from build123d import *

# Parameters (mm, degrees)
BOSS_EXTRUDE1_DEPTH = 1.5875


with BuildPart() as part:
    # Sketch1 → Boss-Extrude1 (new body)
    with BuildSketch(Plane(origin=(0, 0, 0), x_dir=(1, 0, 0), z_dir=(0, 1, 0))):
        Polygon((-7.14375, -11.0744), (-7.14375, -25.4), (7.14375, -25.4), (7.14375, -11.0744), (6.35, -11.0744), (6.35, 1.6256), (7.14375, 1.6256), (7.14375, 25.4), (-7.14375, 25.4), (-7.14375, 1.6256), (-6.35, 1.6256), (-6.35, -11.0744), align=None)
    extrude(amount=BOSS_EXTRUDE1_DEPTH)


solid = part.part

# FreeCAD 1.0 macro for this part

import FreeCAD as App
import Part
import Sketcher
from FreeCAD import Vector
Q = App.Units.Quantity


def add_polygon(sketch, points):
    """Adds a closed chain of lines whose ends are joined by coincident constraints."""
    first, n = sketch.GeometryCount, len(points)
    for a, b in zip(points, points[1:] + points[:1]):
        sketch.addGeometry(Part.LineSegment(App.Vector(*a, 0), App.Vector(*b, 0)), False)
    for i in range(n):
        sketch.addConstraint(Sketcher.Constraint("Coincident", first + i, 2, first + (i + 1) % n, 1))

doc = App.newDocument("Part")
body = doc.addObject("PartDesign::Body", "Body")

sketch1 = doc.addObject("Sketcher::SketchObject", "Sketch")
body.addObject(sketch1)
sketch1.AttachmentSupport = (doc.XZ_Plane, [""])
sketch1.MapMode = "FlatFace"
add_polygon(sketch1, [(-7.14375, 11.0744), (-7.14375, 25.4), (7.14375, 25.4), (7.14375, 11.0744), (6.35, 11.0744), (6.35, -1.6256), (7.14375, -1.6256), (7.14375, -25.4), (-7.14375, -25.4), (-7.14375, -1.6256), (-6.35, -1.6256), (-6.35, 11.0744)])
sketch1.addConstraint(Sketcher.Constraint("Vertical", 0))
sketch1.addConstraint(Sketcher.Constraint("Horizontal", 1))
sketch1.addConstraint(Sketcher.Constraint("Vertical", 2))
sketch1.addConstraint(Sketcher.Constraint("Horizontal", 3))
sketch1.addConstraint(Sketcher.Constraint("Vertical", 4))
sketch1.addConstraint(Sketcher.Constraint("Horizontal", 5))
sketch1.addConstraint(Sketcher.Constraint("Vertical", 6))
sketch1.addConstraint(Sketcher.Constraint("Horizontal", 7))
sketch1.addConstraint(Sketcher.Constraint("Vertical", 8))
sketch1.addConstraint(Sketcher.Constraint("Horizontal", 9))
sketch1.addConstraint(Sketcher.Constraint("Vertical", 10))
sketch1.addConstraint(Sketcher.Constraint("Horizontal", 11))
sketch1.addConstraint(Sketcher.Constraint("Symmetric", 0, 2, 6, 2, -1, 1))
sketch1.addConstraint(Sketcher.Constraint("Symmetric", 5, 2, 8, 2, -2))
sketch1.addConstraint(Sketcher.Constraint("Symmetric", 3, 2, 10, 2, -2))
sketch1.addConstraint(Sketcher.Constraint("Vertical", 2, 2, 5, 2))
sketch1.addConstraint(Sketcher.Constraint("DistanceY", 4, 2, 4, 1, Q("0.5 in")))
sketch1.addConstraint(Sketcher.Constraint("DistanceY", -1, 1, 0, 2, Q("1 in")))
sketch1.addConstraint(Sketcher.Constraint("DistanceX", 9, 2, 4, 2, Q("0.5 in")))
sketch1.addConstraint(Sketcher.Constraint("DistanceX", 1, 1, 1, 2, Q("0.5625 in")))
sketch1.addConstraint(Sketcher.Constraint("DistanceY", 0, 1, 0, 2, Q("0.564 in")))
pad1 = doc.addObject("PartDesign::Pad", "Pad")
body.addObject(pad1)
pad1.Profile = sketch1
pad1.Length = Q("0.0625 in")
pad1.Reversed = True

doc.recompute()
